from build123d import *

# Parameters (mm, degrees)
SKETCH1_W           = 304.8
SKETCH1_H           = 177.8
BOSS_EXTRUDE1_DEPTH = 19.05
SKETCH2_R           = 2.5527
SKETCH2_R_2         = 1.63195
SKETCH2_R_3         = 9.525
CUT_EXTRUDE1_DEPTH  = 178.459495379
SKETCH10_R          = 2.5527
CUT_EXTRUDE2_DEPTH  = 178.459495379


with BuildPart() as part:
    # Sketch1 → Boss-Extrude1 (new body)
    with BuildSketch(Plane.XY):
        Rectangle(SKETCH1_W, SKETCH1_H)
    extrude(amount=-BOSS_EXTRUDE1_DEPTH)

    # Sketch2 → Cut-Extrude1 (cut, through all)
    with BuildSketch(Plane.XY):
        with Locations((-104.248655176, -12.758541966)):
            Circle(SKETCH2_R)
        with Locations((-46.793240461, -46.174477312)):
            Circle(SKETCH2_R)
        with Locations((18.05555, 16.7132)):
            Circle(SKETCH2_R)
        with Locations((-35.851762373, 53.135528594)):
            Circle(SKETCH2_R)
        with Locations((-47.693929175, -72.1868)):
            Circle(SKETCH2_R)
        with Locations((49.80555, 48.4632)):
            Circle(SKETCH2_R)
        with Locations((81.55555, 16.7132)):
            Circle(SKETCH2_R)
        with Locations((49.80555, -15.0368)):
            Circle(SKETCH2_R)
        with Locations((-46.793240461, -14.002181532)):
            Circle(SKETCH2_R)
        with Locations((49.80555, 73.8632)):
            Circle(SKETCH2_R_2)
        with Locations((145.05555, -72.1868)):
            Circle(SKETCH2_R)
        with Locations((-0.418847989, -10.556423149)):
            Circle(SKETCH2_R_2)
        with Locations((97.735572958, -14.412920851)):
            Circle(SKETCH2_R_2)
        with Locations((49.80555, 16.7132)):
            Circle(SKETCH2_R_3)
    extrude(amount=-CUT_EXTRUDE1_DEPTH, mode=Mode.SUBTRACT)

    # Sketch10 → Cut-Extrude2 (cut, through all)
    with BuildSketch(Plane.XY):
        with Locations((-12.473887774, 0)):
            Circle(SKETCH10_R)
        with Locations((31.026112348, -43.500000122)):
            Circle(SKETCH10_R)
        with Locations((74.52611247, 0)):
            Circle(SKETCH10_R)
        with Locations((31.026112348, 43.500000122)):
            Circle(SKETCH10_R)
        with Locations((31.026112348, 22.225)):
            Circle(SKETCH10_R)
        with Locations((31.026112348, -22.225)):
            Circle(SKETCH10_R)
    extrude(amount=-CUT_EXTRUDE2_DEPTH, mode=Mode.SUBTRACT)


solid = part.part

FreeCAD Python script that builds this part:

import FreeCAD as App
import Part
import Sketcher

V = App.Vector
Q = App.Units.Quantity

doc = App.newDocument("Part")
params = doc.addObject("Spreadsheet::Sheet", "Params")
for row, (alias, value) in enumerate([
    ("sketch1_width", "12 in"),
    ("sketch1_height", "7 in"),
    ("pad1_length", "0.75 in"),
    ("sketch2_diameter", "0.75 in"),
    ("sketch2_diameter2", "0.201 in"),
    ("sketch3_diameter", "0.201 in"),
], start=1):
    params.set(f"A{row}", alias)
    params.set(f"B{row}", "=" + value)
    params.setAlias(f"B{row}", alias)

body = doc.addObject("PartDesign::Body", "Body")

# Sketch on XY plane
sketch1 = doc.addObject("Sketcher::SketchObject", "Sketch")
body.addObject(sketch1)
sketch1.AttachmentSupport = (doc.XY_Plane, [""])
sketch1.MapMode = "FlatFace"
sketch1.addGeometry(Part.LineSegment(V(-152.4, 88.9, 0), V(-152.4, -88.9, 0)), False)
sketch1.addGeometry(Part.LineSegment(V(-152.4, -88.9, 0), V(152.4, -88.9, 0)), False)
sketch1.addGeometry(Part.LineSegment(V(152.4, -88.9, 0), V(152.4, 88.9, 0)), False)
sketch1.addGeometry(Part.LineSegment(V(152.4, 88.9, 0), V(-152.4, 88.9, 0)), False)
sketch1.addConstraint(Sketcher.Constraint("Coincident", 0, 2, 1, 1))
sketch1.addConstraint(Sketcher.Constraint("Coincident", 1, 2, 2, 1))
sketch1.addConstraint(Sketcher.Constraint("Coincident", 2, 2, 3, 1))
sketch1.addConstraint(Sketcher.Constraint("Coincident", 3, 2, 0, 1))
sketch1.addConstraint(Sketcher.Constraint("Vertical", 0))
sketch1.addConstraint(Sketcher.Constraint("Horizontal", 1))
sketch1.addConstraint(Sketcher.Constraint("Vertical", 2))
sketch1.addConstraint(Sketcher.Constraint("Horizontal", 3))
sketch1.addConstraint(Sketcher.Constraint("Symmetric", 0, 2, 2, 2, -1, 1))
sketch1.addConstraint(Sketcher.Constraint("DistanceX", 1, 1, 1, 2, Q("12 in")))
sketch1.addConstraint(Sketcher.Constraint("DistanceY", 0, 2, 0, 1, Q("7 in")))
sketch1.setExpression("Constraints[9]", "Params.sketch1_width")
sketch1.setExpression("Constraints[10]", "Params.sketch1_height")
pad1 = doc.addObject("PartDesign::Pad", "Pad")
body.addObject(pad1)
pad1.Profile = sketch1
pad1.setExpression("Length", "Params.pad1_length")
pad1.Reversed = True

# Sketch on XY plane
sketch2 = doc.addObject("Sketcher::SketchObject", "Sketch001")
body.addObject(sketch2)
sketch2.AttachmentSupport = (doc.XY_Plane, [""])
sketch2.MapMode = "FlatFace"
sketch2.addGeometry(Part.Circle(V(-104.248655, -12.758542, 0), V(0, 0, 1), 2.5527), False)
sketch2.addGeometry(Part.Circle(V(-46.79324, -46.174477, 0), V(0, 0, 1), 2.5527), False)
sketch2.addGeometry(Part.Circle(V(18.05555, 16.7132, 0), V(0, 0, 1), 2.5527), False)
sketch2.addGeometry(Part.Circle(V(-35.851762, 53.135529, 0), V(0, 0, 1), 2.5527), False)
sketch2.addGeometry(Part.Circle(V(-47.693929, -72.1868, 0), V(0, 0, 1), 2.5527), False)
sketch2.addGeometry(Part.Circle(V(49.80555, 48.4632, 0), V(0, 0, 1), 2.5527), False)
sketch2.addGeometry(Part.Circle(V(81.55555, 16.7132, 0), V(0, 0, 1), 2.5527), False)
sketch2.addGeometry(Part.Circle(V(49.80555, -15.0368, 0), V(0, 0, 1), 2.5527), False)
sketch2.addGeometry(Part.Circle(V(-46.79324, -14.002182, 0), V(0, 0, 1), 2.5527), False)
sketch2.addGeometry(Part.Circle(V(49.80555, 73.8632, 0), V(0, 0, 1), 1.63195), False)
sketch2.addGeometry(Part.Circle(V(145.05555, -72.1868, 0), V(0, 0, 1), 2.5527), False)
sketch2.addGeometry(Part.Circle(V(-0.418848, -10.556423, 0), V(0, 0, 1), 1.63195), False)
sketch2.addGeometry(Part.Circle(V(97.735573, -14.412921, 0), V(0, 0, 1), 1.63195), False)
sketch2.addGeometry(Part.Circle(V(49.80555, 16.7132, 0), V(0, 0, 1), 9.525), False)
sketch2.addConstraint(Sketcher.Constraint("Equal", 0, 1))
sketch2.addConstraint(Sketcher.Constraint("Equal", 1, 2))
sketch2.addConstraint(Sketcher.Constraint("Equal", 2, 3))
sketch2.addConstraint(Sketcher.Constraint("Equal", 3, 4))
sketch2.addConstraint(Sketcher.Constraint("Equal", 4, 5))
sketch2.addConstraint(Sketcher.Constraint("Equal", 5, 6))
sketch2.addConstraint(Sketcher.Constraint("Equal", 6, 7))
sketch2.addConstraint(Sketcher.Constraint("Equal", 7, 8))
sketch2.addConstraint(Sketcher.Constraint("Equal", 8, 10))
sketch2.addConstraint(Sketcher.Constraint("Equal", 9, 11))
sketch2.addConstraint(Sketcher.Constraint("Equal", 11, 12))
sketch2.addConstraint(Sketcher.Constraint("Horizontal", 2, 3, 6, 3))
sketch2.addConstraint(Sketcher.Constraint("Horizontal", 4, 3, 10, 3))
sketch2.addConstraint(Sketcher.Constraint("Horizontal", 6, 3, 13, 3))
sketch2.addConstraint(Sketcher.Constraint("Vertical", 5, 3, 7, 3))
sketch2.addConstraint(Sketcher.Constraint("Vertical", 1, 3, 8, 3))
sketch2.addConstraint(Sketcher.Constraint("Vertical", 7, 3, 9, 3))
sketch2.addConstraint(Sketcher.Constraint("Vertical", 9, 3, 13, 3))
sketch2.addConstraint(Sketcher.Constraint("Diameter", 13, Q("0.75 in")))
sketch2.addConstraint(Sketcher.Constraint("Diameter", 0, Q("0.201 in")))
sketch2.addConstraint(Sketcher.Constraint("DistanceY", 5, 3, 9, 3, Q("1 in")))
sketch2.addConstraint(Sketcher.Constraint("DistanceX", 2, 3, 10, 3, Q("5 in")))
sketch2.addConstraint(Sketcher.Constraint("Diameter", 9, Q("0.1285 in")))
sketch2.addConstraint(Sketcher.Constraint("DistanceY", 4, 3, 2, 3, Q("3.5 in")))
sketch2.addConstraint(Sketcher.Constraint("DistanceX", 2, 3, 6, 3, Q("2.5 in")))
sketch2.addConstraint(Sketcher.Constraint("DistanceY", 7, 3, 5, 3, Q("2.5 in")))
sketch2.addConstraint(Sketcher.Constraint("DistanceX", 2, 3, 5, 3, Q("1.25 in")))
sketch2.addConstraint(Sketcher.Constraint("DistanceY", 2, 3, 5, 3, Q("1.25 in")))
sketch2.addConstraint(Sketcher.Constraint("DistanceY", -1, 1, 2, 3, Q("0.658 in")))
sketch2.addConstraint(Sketcher.Constraint("DistanceY", 0, 3, -1, 1, 12.758542))
sketch2.addConstraint(Sketcher.Constraint("DistanceX", 1, 3, -1, 1, 46.79324))
sketch2.addConstraint(Sketcher.Constraint("DistanceX", -1, 1, 2, 3, 18.05555))
sketch2.addConstraint(Sketcher.Constraint("DistanceY", -1, 1, 3, 3, 53.135529))
sketch2.addConstraint(Sketcher.Constraint("DistanceX", 4, 3, -1, 1, 47.693929))
sketch2.addConstraint(Sketcher.Constraint("DistanceY", 8, 3, -1, 1, 14.002182))
sketch2.addConstraint(Sketcher.Constraint("DistanceY", 12, 3, -1, 1, 14.412921))
sketch2.addConstraint(Sketcher.Constraint("DistanceX", 1, 3, 3, 3, 10.941478))
sketch2.addConstraint(Sketcher.Constraint("DistanceY", 8, 3, 11, 3, 3.445758))
sketch2.addConstraint(Sketcher.Constraint("DistanceX", 0, 3, -1, 1, 104.248655))
sketch2.addConstraint(Sketcher.Constraint("DistanceY", 1, 3, -1, 1, 46.174477))
sketch2.addConstraint(Sketcher.Constraint("DistanceX", 11, 3, -1, 1, 0.418848))
sketch2.addConstraint(Sketcher.Constraint("DistanceX", -1, 1, 12, 3, 97.735573))
sketch2.setExpression("Constraints[18]", "Params.sketch2_diameter")
sketch2.setExpression("Constraints[19]", "Params.sketch2_diameter2")
pocket1 = doc.addObject("PartDesign::Pocket", "Pocket")
body.addObject(pocket1)
pocket1.Profile = sketch2
pocket1.Type = "ThroughAll"

# Sketch on XY plane
sketch3 = doc.addObject("Sketcher::SketchObject", "Sketch002")
body.addObject(sketch3)
sketch3.AttachmentSupport = (doc.XY_Plane, [""])
sketch3.MapMode = "FlatFace"
sketch3.addGeometry(Part.Circle(V(-12.473888, 0, 0), V(0, 0, 1), 2.5527), False)
sketch3.addGeometry(Part.Circle(V(31.026112, -43.5, 0), V(0, 0, 1), 2.5527), False)
sketch3.addGeometry(Part.Circle(V(74.526112, 0, 0), V(0, 0, 1), 2.5527), False)
sketch3.addGeometry(Part.Circle(V(31.026112, 43.5, 0), V(0, 0, 1), 2.5527), False)
sketch3.addGeometry(Part.Circle(V(31.026112, 22.225, 0), V(0, 0, 1), 2.5527), False)
sketch3.addGeometry(Part.Circle(V(31.026112, -22.225, 0), V(0, 0, 1), 2.5527), False)
sketch3.addConstraint(Sketcher.Constraint("Equal", 0, 1))
sketch3.addConstraint(Sketcher.Constraint("Equal", 1, 2))
sketch3.addConstraint(Sketcher.Constraint("Equal", 2, 3))
sketch3.addConstraint(Sketcher.Constraint("Equal", 3, 4))
sketch3.addConstraint(Sketcher.Constraint("Equal", 4, 5))
sketch3.addConstraint(Sketcher.Constraint("Symmetric", 1, 3, 3, 3, -1))
sketch3.addConstraint(Sketcher.Constraint("Symmetric", 4, 3, 5, 3, -1))
sketch3.addConstraint(Sketcher.Constraint("PointOnObject", 0, 3, -1))
sketch3.addConstraint(Sketcher.Constraint("PointOnObject", 2, 3, -1))
sketch3.addConstraint(Sketcher.Constraint("Vertical", 3, 3, 4, 3))
sketch3.addConstraint(Sketcher.Constraint("Diameter", 0, Q("0.201 in")))
sketch3.addConstraint(Sketcher.Constraint("DistanceY", 5, 3, 4, 3, Q("1.75 in")))
sketch3.addConstraint(Sketcher.Constraint("DistanceY", 1, 3, -1, 1, 43.5))
sketch3.addConstraint(Sketcher.Constraint("DistanceX", 0, 3, 1, 3, 43.5))
sketch3.addConstraint(Sketcher.Constraint("DistanceX", 1, 3, 2, 3, 43.5))
sketch3.addConstraint(Sketcher.Constraint("DistanceX", 0, 3, -1, 1, 12.473888))
sketch3.setExpression("Constraints[10]", "Params.sketch3_diameter")
pocket2 = doc.addObject("PartDesign::Pocket", "Pocket001")
body.addObject(pocket2)
pocket2.Profile = sketch3
pocket2.Type = "ThroughAll"

doc.recompute()
